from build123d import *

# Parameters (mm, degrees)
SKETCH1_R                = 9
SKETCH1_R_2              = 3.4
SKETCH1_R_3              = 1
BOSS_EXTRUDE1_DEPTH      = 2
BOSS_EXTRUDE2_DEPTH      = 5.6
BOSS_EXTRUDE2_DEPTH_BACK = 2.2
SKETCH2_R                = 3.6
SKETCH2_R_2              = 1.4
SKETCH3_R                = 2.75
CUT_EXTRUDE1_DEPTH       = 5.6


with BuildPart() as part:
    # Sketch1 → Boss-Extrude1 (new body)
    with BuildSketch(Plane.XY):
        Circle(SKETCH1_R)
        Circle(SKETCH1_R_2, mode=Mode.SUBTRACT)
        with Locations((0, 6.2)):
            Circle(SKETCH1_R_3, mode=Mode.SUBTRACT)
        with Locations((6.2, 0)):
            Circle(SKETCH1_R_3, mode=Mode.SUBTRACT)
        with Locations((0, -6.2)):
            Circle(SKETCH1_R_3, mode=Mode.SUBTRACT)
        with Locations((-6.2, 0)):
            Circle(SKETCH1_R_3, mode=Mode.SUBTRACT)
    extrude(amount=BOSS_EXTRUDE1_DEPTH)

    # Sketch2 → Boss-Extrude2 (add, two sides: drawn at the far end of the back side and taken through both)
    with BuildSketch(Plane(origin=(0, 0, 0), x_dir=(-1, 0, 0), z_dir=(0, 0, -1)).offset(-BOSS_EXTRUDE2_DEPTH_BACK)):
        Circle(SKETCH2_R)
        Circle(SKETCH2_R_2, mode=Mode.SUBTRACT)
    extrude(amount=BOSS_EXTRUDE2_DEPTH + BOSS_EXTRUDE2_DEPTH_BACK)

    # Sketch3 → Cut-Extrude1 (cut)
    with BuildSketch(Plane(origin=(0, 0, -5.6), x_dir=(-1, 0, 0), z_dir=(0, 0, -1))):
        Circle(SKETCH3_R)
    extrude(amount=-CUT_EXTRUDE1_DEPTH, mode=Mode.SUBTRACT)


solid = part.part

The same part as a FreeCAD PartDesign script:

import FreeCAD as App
import Part
import Sketcher

V = App.Vector

doc = App.newDocument("Part")
body = doc.addObject("PartDesign::Body", "Body")

sketch1 = body.newObject("Sketcher::SketchObject", "Sketch")
sketch1.AttachmentSupport = (doc.getObject("XY_Plane"), [""])
sketch1.MapMode = "FlatFace"
sketch1.addGeometry([
    Part.Circle(V(0, 0, 0), V(0, 0, 1), 9),
    Part.Circle(V(0, -6.2, 0), V(0, 0, 1), 1),
    Part.Circle(V(-6.2, 0, 0), V(0, 0, 1), 1),
    Part.Circle(V(0, 0, 0), V(0, 0, 1), 3.4),
    Part.Circle(V(6.2, 0, 0), V(0, 0, 1), 1),
    Part.Circle(V(0, 6.2, 0), V(0, 0, 1), 1),
], False)
sketch1.addConstraint([
    Sketcher.Constraint("Coincident", 0, 3, -1, 1),
    Sketcher.Constraint("Coincident", 3, 3, -1, 1),
    Sketcher.Constraint("Equal", 1, 2),
    Sketcher.Constraint("Equal", 2, 4),
    Sketcher.Constraint("Equal", 4, 5),
    Sketcher.Constraint("Symmetric", 2, 3, 4, 3, -1, 1),
    Sketcher.Constraint("Symmetric", 1, 3, 5, 3, -1, 1),
    Sketcher.Constraint("PointOnObject", 1, 3, -2),
    Sketcher.Constraint("PointOnObject", 2, 3, -1),
    Sketcher.Constraint("Diameter", 0, 18.0),
    Sketcher.Constraint("Diameter", 1, 2.0),
    Sketcher.Constraint("Diameter", 3, 6.8),
    Sketcher.Constraint("DistanceY", 1, 3, -1, 1, 6.2),
    Sketcher.Constraint("DistanceX", 2, 3, -1, 1, 6.2),
])
pad1 = body.newObject("PartDesign::Pad", "Pad")
pad1.Profile = sketch1
pad1.Length = 2

sketch2 = body.newObject("Sketcher::SketchObject", "Sketch001")
sketch2.AttachmentSupport = (doc.getObject("XY_Plane"), [""])
sketch2.MapMode = "FlatFace"
sketch2.addGeometry([
    Part.Circle(V(0, 0, 0), V(0, 0, 1), 3.6),
    Part.Circle(V(0, 0, 0), V(0, 0, 1), 1.4),
], False)
sketch2.addConstraint([
    Sketcher.Constraint("Coincident", 0, 3, -1, 1),
    Sketcher.Constraint("Coincident", 1, 3, -1, 1),
    Sketcher.Constraint("Diameter", 0, 7.2),
    Sketcher.Constraint("Diameter", 1, 2.8),
])
pad2 = body.newObject("PartDesign::Pad", "Pad001")
pad2.Profile = sketch2
pad2.Type = "TwoLengths"
pad2.Length = 5.6
pad2.Length2 = 2.2
pad2.Reversed = True

sketch3 = body.newObject("Sketcher::SketchObject", "Sketch002")
sketch3.AttachmentSupport = (doc.getObject("XY_Plane"), [""])
sketch3.MapMode = "FlatFace"
sketch3.AttachmentOffset = App.Placement(V(0, 0, -5.6), App.Rotation())
sketch3.addGeometry(Part.Circle(V(0, 0, 0), V(0, 0, 1), 2.75), False)
sketch3.addConstraint([
    Sketcher.Constraint("Coincident", 0, 3, -1, 1),
    Sketcher.Constraint("Diameter", 0, 5.5),
])
pocket1 = body.newObject("PartDesign::Pocket", "Pocket")
pocket1.Profile = sketch3
pocket1.Length = 5.6
pocket1.Reversed = True

doc.recompute()
